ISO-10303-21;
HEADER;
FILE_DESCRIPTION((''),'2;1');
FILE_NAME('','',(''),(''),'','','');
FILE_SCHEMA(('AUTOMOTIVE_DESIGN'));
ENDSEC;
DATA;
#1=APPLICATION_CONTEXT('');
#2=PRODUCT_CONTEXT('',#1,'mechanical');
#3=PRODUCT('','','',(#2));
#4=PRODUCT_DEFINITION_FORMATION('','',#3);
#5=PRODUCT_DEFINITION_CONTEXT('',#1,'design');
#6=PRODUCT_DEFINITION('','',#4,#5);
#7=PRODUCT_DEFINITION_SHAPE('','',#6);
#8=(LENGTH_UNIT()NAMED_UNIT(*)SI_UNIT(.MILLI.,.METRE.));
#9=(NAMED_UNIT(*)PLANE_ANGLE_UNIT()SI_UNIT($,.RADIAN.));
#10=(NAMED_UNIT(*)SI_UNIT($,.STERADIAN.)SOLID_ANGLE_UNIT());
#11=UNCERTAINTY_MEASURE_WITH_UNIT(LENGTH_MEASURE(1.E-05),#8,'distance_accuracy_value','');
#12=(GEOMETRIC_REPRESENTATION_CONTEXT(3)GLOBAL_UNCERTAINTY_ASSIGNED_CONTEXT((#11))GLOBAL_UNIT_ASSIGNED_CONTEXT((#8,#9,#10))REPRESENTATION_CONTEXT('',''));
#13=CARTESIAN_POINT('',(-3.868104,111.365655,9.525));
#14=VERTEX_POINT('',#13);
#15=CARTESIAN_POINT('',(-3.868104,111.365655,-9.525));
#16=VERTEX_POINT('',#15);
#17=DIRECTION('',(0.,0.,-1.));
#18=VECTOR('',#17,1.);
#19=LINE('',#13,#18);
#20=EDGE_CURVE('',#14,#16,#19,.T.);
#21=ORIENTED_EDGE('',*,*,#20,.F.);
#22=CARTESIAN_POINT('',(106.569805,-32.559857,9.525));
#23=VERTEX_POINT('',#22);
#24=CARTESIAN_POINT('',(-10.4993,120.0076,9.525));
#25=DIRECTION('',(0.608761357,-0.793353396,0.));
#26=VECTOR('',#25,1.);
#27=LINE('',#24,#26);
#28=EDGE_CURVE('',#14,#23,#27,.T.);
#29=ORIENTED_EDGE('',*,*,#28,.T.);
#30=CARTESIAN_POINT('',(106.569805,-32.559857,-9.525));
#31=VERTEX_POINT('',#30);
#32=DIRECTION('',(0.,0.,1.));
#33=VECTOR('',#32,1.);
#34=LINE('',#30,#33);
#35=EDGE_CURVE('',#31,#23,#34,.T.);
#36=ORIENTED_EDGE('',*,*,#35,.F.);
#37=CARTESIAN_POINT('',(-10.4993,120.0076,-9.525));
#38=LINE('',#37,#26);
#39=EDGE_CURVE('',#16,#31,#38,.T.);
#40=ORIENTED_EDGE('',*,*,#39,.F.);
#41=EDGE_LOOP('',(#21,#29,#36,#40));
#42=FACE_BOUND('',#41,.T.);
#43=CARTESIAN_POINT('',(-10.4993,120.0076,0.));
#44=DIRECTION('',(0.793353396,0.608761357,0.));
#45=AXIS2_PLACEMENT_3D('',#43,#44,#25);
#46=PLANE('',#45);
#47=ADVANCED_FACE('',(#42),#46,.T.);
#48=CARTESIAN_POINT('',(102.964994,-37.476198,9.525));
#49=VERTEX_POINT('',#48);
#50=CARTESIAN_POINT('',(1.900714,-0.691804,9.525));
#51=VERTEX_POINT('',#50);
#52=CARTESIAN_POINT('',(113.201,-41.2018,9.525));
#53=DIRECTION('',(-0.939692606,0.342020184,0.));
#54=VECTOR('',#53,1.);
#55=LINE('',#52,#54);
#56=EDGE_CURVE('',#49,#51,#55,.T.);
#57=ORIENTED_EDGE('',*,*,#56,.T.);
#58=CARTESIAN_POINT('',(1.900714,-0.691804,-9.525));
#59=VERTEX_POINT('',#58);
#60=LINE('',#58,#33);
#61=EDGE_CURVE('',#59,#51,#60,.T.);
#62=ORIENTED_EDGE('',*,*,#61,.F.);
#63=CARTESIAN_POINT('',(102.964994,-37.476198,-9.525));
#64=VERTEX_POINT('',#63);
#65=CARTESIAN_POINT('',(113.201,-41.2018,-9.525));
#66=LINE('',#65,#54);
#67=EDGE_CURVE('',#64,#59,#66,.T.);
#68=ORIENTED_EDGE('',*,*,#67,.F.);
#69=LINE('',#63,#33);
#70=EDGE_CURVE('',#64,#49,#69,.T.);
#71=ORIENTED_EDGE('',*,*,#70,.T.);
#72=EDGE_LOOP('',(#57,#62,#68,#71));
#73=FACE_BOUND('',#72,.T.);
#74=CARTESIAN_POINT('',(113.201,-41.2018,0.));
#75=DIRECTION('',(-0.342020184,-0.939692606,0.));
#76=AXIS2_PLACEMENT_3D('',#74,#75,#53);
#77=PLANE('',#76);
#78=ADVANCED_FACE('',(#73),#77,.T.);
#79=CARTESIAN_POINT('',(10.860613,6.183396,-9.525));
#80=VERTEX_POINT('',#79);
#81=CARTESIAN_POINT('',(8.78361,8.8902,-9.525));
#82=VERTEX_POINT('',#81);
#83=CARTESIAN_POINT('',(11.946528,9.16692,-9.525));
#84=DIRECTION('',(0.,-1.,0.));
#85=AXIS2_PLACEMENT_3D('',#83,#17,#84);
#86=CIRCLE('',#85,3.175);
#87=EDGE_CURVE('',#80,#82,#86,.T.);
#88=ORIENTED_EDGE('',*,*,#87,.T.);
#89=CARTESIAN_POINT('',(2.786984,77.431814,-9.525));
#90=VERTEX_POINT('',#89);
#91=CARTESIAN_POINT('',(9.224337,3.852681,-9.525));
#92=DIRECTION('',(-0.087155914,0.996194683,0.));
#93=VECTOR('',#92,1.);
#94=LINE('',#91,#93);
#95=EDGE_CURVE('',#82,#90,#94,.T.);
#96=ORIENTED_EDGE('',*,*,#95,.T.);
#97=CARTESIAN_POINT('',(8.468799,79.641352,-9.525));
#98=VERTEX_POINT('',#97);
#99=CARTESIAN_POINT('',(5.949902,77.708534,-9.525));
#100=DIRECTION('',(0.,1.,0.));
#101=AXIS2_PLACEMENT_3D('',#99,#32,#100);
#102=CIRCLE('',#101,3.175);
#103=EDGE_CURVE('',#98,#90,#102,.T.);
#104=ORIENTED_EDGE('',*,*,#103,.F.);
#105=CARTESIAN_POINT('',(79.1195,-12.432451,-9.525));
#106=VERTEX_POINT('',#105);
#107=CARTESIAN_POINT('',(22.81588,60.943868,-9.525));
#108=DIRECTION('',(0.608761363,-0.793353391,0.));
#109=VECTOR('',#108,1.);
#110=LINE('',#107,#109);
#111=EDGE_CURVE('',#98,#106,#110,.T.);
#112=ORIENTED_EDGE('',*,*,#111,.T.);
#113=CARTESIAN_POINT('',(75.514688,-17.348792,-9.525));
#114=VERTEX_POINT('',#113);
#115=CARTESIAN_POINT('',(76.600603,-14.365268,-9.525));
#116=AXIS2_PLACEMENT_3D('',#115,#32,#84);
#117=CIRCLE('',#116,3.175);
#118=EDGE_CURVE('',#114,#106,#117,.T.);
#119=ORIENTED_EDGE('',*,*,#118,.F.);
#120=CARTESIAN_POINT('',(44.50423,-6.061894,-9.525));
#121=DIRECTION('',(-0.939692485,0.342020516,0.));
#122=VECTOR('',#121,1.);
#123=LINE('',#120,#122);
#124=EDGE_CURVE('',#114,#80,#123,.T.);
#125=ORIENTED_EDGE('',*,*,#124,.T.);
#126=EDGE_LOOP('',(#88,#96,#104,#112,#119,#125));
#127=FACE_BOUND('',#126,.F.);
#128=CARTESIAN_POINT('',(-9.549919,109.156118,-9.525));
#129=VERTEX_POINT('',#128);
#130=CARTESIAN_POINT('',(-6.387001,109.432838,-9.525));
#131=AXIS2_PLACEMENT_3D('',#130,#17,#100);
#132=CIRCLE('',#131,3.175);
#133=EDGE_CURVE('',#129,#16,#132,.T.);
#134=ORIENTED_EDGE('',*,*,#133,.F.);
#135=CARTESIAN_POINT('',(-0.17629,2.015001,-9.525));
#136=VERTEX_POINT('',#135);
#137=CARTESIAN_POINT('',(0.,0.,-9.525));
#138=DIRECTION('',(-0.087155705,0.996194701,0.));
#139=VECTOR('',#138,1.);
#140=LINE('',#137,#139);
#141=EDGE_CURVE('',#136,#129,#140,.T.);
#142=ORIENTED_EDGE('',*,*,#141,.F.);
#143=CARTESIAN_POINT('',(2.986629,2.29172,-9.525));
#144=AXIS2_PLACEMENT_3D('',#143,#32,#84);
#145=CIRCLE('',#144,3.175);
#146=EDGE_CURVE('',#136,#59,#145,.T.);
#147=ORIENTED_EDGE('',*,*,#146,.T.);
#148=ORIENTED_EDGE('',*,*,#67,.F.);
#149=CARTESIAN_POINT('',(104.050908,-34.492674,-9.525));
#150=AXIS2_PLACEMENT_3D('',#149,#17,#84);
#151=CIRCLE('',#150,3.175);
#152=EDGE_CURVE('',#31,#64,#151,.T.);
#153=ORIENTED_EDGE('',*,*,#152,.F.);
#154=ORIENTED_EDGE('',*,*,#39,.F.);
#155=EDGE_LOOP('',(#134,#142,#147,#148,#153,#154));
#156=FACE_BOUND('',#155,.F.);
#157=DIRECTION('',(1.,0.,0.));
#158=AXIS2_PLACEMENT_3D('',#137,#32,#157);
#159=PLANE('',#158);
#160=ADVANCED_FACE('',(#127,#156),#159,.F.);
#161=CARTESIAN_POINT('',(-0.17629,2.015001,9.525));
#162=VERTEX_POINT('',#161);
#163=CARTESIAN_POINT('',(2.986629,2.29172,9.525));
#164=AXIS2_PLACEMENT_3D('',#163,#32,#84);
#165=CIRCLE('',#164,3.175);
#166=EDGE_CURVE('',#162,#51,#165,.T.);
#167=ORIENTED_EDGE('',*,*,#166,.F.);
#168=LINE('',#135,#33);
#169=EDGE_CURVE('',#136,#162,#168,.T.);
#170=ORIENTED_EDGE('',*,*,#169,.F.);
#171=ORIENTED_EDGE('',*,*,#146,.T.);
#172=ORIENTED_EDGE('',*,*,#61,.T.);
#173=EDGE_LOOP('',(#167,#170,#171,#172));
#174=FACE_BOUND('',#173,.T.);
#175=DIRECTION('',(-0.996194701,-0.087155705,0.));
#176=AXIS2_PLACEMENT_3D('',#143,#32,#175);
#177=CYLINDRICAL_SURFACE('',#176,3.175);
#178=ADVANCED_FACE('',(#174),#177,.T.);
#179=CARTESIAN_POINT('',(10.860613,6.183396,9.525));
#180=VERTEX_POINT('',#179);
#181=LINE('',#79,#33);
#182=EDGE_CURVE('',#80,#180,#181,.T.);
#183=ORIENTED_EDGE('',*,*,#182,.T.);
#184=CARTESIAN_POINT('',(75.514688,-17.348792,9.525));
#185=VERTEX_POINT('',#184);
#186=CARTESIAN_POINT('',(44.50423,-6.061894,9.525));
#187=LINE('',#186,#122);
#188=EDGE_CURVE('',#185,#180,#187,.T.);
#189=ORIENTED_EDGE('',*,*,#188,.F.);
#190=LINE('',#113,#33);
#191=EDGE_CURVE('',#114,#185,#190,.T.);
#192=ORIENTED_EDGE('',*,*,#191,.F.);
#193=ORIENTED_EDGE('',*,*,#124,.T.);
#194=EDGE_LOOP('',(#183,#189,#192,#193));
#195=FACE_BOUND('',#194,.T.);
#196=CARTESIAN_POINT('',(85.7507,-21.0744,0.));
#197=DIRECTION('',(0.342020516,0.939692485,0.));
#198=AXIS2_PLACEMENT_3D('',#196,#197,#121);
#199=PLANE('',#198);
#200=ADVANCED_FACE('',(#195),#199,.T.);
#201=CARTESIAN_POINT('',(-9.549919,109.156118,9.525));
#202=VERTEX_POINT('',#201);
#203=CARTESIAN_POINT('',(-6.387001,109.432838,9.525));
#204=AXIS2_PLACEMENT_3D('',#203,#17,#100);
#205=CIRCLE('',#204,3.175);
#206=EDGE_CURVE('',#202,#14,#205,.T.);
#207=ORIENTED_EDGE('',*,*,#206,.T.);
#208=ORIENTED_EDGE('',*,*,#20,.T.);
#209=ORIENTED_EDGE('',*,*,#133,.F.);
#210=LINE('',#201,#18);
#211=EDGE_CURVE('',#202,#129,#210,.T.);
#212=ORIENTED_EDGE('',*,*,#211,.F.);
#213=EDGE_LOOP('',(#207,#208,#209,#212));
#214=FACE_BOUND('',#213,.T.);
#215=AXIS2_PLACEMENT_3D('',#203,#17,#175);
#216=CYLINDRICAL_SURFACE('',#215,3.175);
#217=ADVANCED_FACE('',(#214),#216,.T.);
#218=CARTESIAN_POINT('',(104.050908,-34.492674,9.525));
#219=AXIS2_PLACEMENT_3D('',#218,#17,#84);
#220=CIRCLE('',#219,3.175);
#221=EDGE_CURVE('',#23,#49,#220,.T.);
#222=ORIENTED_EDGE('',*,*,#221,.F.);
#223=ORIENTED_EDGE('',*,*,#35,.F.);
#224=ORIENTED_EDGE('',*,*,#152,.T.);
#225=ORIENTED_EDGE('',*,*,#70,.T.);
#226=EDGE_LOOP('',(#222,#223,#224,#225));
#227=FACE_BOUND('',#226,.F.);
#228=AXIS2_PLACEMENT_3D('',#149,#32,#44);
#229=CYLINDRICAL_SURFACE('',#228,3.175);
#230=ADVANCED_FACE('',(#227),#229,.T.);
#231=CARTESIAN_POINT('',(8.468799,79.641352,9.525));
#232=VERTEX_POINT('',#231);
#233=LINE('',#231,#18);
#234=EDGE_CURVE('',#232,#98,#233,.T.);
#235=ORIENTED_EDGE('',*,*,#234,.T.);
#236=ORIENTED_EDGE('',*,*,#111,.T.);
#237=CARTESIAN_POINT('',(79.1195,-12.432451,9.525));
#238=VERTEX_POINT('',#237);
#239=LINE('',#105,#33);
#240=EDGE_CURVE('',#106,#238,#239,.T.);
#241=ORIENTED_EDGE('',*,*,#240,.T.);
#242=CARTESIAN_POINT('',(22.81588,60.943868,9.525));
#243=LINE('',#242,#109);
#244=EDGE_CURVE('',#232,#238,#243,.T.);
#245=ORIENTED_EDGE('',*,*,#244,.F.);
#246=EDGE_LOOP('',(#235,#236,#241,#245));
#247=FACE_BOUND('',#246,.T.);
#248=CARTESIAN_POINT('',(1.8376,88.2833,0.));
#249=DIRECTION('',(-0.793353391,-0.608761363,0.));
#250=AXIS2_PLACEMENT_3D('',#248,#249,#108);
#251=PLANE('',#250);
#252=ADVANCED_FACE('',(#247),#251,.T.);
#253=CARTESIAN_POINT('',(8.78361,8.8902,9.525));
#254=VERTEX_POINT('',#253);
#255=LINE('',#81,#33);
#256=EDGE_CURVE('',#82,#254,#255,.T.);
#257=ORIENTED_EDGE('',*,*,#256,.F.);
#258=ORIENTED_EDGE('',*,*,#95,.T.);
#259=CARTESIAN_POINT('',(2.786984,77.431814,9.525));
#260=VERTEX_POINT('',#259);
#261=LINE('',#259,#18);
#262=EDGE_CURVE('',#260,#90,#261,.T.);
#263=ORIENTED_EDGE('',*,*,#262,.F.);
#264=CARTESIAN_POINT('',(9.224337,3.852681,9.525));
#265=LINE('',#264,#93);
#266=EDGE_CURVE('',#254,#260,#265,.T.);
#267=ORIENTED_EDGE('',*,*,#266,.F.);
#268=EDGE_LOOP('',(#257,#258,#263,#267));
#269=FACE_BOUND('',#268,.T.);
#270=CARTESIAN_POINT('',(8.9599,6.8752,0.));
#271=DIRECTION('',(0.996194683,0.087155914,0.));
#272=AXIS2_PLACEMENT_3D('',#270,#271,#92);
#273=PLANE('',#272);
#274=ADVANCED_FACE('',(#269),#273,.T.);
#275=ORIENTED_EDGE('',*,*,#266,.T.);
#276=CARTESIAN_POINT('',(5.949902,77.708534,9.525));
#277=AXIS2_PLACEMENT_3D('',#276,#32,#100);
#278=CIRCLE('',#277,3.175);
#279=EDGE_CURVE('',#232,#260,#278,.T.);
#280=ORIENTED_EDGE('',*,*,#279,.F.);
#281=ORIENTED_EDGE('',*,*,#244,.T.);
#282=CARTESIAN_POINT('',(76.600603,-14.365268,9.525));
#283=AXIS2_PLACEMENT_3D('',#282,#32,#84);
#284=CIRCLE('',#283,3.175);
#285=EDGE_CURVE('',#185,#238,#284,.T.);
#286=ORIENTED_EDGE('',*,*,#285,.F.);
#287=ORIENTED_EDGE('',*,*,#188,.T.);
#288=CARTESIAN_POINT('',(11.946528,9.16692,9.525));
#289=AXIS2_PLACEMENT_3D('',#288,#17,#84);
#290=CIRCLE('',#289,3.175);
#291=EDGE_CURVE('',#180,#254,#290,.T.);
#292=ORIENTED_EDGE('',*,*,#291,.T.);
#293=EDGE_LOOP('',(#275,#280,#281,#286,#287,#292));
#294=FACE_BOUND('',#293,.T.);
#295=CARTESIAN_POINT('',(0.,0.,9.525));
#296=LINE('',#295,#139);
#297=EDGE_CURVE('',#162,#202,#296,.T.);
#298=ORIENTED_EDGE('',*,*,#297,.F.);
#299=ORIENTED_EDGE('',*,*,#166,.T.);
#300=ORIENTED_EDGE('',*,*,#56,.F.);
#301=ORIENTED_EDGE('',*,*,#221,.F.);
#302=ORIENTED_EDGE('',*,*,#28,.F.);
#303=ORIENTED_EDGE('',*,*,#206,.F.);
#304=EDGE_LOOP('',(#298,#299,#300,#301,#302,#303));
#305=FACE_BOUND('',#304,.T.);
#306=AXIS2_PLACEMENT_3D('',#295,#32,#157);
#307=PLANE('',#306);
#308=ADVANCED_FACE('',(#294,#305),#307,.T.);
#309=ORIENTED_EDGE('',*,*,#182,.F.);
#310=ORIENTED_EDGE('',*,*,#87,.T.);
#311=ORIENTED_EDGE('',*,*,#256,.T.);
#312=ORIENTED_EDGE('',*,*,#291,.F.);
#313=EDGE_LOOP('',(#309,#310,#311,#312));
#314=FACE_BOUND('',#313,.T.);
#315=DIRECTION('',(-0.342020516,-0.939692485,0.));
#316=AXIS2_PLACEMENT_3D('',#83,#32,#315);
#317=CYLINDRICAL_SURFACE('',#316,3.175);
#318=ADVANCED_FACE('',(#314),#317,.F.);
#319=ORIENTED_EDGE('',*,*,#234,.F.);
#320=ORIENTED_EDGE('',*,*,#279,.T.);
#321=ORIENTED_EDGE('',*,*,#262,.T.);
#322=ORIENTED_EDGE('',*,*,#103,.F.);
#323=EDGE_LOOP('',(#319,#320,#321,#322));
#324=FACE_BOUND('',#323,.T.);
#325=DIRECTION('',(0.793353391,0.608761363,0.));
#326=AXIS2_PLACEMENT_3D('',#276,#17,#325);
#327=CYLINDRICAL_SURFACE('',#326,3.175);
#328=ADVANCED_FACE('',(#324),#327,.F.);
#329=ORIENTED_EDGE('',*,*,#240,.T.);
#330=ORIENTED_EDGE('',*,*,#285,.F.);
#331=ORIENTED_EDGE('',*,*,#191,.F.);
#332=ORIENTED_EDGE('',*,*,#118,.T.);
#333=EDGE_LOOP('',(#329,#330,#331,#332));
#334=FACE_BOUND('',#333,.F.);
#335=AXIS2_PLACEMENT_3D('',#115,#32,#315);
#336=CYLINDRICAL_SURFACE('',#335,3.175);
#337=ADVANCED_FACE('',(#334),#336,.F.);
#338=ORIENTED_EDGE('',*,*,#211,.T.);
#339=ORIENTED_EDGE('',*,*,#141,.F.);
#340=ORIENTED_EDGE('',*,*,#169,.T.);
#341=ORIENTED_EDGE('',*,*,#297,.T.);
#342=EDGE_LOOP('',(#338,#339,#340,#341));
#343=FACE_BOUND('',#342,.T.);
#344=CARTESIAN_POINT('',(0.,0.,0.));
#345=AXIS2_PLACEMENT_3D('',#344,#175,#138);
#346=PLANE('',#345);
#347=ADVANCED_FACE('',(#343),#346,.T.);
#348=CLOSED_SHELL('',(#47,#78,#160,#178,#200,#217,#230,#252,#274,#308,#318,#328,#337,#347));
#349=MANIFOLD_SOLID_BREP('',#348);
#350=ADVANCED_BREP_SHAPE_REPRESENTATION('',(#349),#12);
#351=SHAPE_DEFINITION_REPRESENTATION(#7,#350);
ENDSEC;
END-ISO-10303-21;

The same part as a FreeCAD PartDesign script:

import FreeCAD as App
import Part
import Sketcher
Q = App.Units.Quantity


def edges_at(feature, points):
    """Names of the edges that pass closest to the given points."""
    edges = feature.Shape.Edges
    near = lambda p: min(range(len(edges)), key=lambda i: edges[i].distToShape(Part.Vertex(*p))[0])
    return sorted({f"Edge{near(p) + 1}" for p in points})


def add_polygon(sketch, points):
    """Adds a closed chain of lines whose ends are joined by coincident constraints."""
    first, n = sketch.GeometryCount, len(points)
    for a, b in zip(points, points[1:] + points[:1]):
        sketch.addGeometry(Part.LineSegment(App.Vector(*a, 0), App.Vector(*b, 0)), False)
    for i in range(n):
        sketch.addConstraint(Sketcher.Constraint("Coincident", first + i, 2, first + (i + 1) % n, 1))

doc = App.newDocument("Part")
body = doc.addObject("PartDesign::Body", "Body")

sketch1 = body.newObject("Sketcher::SketchObject", "Sketch")
sketch1.AttachmentSupport = (doc.getObject("XY_Plane"), [""])
sketch1.MapMode = "FlatFace"
add_polygon(sketch1, [(-10, 120), (0, 0), (113, -41)])
sketch1.addConstraint([
    Sketcher.Constraint("Coincident", 0, 2, -1, 1),
    Sketcher.Constraint("Equal", 0, 1),
    Sketcher.Constraint("Distance", 2, Q("8 in")),
    Sketcher.Constraint("Angle", 0, Q("-85 deg")),
    Sketcher.Constraint("Angle", 1, Q("-20 deg")),
])
pad1 = body.newObject("PartDesign::Pad", "Pad")
pad1.Profile = sketch1
pad1.Length = Q("0.75 in")
pad1.Midplane = True

sketch2 = body.newObject("Sketcher::SketchObject", "Sketch001")
sketch2.AttachmentSupport = (doc.getObject("XY_Plane"), [""])
sketch2.MapMode = "FlatFace"
add_polygon(sketch2, [(1.8376, 88.2833), (8.9599, 6.8752), (85.7507, -21.0744)])
sketch2.addConstraint([
    Sketcher.Constraint("DistanceX", -1, 1, 1, 2, Q("3.376 in")),
    Sketcher.Constraint("DistanceY", 1, 2, -1, 1, Q("0.8297 in")),
    Sketcher.Constraint("DistanceX", 2, 2, 0, 2, Q("0.2804 in")),
    Sketcher.Constraint("Distance", 0, 81.719),
    Sketcher.Constraint("Distance", 1, 81.719),
    Sketcher.Constraint("Distance", 2, 137.8424),
])
pocket1 = body.newObject("PartDesign::Pocket", "Pocket")
pocket1.Profile = sketch2
pocket1.Type = "ThroughAll"
pocket1.Midplane = True
doc.recompute()

fillet = body.newObject("PartDesign::Fillet", "Fillet")
fillet.Base = (pocket1, edges_at(pocket1, [(-10.499, 120.008, 0), (0, 0, 0), (113.201, -41.202, 0)]))
fillet.Radius = Q("0.125 in")
doc.recompute()

fillet2 = body.newObject("PartDesign::Fillet", "Fillet001")
fillet2.Base = (fillet, edges_at(fillet, [(1.838, 88.283, 0), (8.96, 6.875, 0), (85.751, -21.074, 0)]))
fillet2.Radius = Q("0.125 in")

doc.recompute()
